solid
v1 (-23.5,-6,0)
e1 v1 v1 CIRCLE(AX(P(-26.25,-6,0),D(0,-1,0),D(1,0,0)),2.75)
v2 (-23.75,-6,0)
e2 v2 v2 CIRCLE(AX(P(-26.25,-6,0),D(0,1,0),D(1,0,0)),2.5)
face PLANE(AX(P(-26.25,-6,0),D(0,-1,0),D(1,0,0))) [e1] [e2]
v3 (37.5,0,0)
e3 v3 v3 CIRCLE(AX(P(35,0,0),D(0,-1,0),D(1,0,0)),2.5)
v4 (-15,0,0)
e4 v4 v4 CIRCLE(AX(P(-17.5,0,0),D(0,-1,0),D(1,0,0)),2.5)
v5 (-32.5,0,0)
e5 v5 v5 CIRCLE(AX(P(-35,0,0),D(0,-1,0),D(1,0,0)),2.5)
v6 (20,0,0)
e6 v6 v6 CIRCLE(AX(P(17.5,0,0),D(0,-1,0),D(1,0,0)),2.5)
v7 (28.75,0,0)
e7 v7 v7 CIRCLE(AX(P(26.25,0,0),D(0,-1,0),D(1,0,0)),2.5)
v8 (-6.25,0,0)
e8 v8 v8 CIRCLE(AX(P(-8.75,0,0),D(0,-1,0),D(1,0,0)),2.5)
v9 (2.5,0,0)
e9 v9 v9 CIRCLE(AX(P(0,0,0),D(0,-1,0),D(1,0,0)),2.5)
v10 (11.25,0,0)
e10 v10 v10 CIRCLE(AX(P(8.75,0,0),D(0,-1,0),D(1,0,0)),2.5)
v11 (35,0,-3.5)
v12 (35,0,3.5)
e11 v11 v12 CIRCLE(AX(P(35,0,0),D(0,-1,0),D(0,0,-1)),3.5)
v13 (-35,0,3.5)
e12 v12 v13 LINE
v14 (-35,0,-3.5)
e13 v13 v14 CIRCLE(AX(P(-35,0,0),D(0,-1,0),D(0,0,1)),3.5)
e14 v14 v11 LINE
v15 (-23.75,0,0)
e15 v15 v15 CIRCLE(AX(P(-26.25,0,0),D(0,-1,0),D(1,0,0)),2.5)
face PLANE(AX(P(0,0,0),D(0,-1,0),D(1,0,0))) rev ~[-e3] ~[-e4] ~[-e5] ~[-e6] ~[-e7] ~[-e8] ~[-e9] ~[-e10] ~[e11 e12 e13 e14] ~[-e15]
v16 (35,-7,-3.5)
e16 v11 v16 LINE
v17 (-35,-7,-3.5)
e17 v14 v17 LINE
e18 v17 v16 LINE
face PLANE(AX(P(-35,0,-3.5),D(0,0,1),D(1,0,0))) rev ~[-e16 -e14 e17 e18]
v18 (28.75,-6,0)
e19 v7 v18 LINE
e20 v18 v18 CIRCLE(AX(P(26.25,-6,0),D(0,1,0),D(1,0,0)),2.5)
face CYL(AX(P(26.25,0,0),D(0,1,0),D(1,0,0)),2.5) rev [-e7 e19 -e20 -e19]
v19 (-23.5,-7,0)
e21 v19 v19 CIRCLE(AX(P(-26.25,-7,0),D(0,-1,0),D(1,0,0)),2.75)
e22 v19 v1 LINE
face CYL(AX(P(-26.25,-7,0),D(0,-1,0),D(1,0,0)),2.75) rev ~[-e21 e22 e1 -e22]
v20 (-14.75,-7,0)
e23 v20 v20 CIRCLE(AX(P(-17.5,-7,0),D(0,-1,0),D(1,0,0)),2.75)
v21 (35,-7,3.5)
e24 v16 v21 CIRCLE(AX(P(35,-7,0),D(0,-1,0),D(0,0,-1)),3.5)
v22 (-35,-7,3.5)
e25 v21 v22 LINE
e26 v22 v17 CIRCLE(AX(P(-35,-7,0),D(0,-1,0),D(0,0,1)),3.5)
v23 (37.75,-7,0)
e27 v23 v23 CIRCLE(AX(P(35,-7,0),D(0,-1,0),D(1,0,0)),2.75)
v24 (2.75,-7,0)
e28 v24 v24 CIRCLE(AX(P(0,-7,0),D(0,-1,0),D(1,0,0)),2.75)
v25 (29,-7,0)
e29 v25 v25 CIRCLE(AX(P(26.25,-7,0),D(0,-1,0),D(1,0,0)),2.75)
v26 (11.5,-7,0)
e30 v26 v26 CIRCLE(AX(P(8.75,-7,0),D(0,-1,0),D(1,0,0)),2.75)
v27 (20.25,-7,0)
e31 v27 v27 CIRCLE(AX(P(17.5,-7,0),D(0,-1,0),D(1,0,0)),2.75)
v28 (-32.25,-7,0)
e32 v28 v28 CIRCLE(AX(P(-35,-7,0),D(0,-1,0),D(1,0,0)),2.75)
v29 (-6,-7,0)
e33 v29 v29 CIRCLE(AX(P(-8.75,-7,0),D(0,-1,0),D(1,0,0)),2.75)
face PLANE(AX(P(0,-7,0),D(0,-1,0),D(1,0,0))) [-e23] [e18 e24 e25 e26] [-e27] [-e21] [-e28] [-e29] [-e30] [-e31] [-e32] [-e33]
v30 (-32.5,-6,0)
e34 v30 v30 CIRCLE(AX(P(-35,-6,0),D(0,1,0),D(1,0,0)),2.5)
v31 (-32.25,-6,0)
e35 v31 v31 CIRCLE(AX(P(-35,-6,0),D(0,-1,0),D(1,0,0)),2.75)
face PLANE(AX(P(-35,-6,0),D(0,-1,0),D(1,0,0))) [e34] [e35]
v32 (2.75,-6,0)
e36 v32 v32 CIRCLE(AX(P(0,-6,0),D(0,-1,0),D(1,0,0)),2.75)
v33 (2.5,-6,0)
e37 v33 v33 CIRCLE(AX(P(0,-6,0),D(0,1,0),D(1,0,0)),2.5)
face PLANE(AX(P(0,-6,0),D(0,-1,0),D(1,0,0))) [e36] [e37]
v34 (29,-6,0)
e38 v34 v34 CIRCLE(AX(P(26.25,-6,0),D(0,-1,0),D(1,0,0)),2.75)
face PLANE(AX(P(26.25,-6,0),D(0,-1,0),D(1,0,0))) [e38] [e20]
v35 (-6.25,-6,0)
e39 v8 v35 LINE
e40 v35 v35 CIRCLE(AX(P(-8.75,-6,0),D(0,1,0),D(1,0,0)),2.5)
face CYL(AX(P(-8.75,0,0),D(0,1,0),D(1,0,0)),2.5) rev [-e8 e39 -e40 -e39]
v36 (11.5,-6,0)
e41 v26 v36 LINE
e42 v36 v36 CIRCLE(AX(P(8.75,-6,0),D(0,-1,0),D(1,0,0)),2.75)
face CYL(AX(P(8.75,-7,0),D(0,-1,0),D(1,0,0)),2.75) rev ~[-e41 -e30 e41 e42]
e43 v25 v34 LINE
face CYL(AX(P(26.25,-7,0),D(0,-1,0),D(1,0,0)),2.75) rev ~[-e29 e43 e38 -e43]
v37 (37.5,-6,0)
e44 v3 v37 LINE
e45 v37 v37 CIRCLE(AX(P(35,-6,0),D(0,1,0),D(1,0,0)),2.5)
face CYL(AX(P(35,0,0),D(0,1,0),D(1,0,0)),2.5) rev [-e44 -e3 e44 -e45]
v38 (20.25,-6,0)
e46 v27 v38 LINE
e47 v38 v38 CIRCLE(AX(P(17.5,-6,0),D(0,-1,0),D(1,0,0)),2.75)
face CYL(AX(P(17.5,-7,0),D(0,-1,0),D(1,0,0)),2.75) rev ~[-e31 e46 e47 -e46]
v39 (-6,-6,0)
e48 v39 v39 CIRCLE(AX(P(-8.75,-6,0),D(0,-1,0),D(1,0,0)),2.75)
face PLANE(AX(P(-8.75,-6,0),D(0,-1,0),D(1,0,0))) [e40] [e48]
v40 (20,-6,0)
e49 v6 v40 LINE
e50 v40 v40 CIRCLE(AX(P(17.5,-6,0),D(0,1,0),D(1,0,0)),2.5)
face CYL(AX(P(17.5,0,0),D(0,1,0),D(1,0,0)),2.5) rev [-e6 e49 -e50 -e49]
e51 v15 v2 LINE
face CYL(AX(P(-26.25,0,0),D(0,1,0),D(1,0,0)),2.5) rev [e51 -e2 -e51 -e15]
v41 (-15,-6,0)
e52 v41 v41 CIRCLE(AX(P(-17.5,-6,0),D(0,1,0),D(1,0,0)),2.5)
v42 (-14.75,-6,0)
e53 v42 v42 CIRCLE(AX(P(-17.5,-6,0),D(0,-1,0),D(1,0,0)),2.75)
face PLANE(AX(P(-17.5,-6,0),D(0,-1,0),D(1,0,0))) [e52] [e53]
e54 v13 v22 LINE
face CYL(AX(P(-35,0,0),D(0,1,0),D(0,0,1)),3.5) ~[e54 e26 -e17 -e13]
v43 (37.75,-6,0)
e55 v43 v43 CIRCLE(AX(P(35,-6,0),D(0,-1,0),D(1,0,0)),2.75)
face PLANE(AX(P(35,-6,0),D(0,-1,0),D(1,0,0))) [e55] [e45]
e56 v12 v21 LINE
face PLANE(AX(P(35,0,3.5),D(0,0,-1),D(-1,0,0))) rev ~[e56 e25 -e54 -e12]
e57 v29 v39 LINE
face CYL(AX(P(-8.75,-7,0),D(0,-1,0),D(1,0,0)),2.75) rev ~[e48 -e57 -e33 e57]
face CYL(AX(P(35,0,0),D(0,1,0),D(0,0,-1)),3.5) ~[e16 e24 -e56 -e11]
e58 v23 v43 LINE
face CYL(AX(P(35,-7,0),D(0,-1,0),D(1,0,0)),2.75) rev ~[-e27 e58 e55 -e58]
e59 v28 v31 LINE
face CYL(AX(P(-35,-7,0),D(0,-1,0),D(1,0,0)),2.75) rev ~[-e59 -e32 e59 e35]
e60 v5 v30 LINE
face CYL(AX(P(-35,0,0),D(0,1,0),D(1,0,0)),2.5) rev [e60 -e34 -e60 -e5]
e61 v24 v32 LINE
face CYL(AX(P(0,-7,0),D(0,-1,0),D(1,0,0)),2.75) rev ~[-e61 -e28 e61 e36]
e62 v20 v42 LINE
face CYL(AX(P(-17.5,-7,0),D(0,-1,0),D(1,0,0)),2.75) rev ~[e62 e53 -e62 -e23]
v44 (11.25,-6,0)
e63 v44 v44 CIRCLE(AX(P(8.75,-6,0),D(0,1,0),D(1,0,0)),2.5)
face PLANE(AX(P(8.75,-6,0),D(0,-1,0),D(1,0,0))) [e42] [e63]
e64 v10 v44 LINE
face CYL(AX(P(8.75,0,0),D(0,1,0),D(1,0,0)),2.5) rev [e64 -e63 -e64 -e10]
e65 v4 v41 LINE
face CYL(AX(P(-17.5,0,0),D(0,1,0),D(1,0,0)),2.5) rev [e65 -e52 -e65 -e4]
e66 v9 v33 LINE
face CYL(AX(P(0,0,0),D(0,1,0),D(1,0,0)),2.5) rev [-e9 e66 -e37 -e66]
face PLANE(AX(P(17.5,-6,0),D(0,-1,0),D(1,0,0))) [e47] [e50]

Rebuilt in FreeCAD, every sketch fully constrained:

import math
import FreeCAD as App
import Part
import Sketcher

V = App.Vector

doc = App.newDocument("Part")
body = doc.addObject("PartDesign::Body", "Body")

# Sketch on XZ plane
sketch1 = body.newObject("Sketcher::SketchObject", "Sketch")
sketch1.AttachmentSupport = (doc.getObject("XZ_Plane"), [""])
sketch1.MapMode = "FlatFace"
sketch1.addGeometry(Part.ArcOfCircle(Part.Circle(V(35, 0, 0), V(0, 0, 1), 3.5), math.radians(-90), math.radians(90)), False)
sketch1.addGeometry(Part.LineSegment(V(35, 3.5, 0), V(-35, 3.5, 0)), False)
sketch1.addGeometry(Part.ArcOfCircle(Part.Circle(V(-35, 0, 0), V(0, 0, 1), 3.5), math.radians(90), math.radians(270)), False)
sketch1.addGeometry(Part.LineSegment(V(-35, -3.5, 0), V(35, -3.5, 0)), False)
sketch1.addGeometry(Part.Circle(V(-35, 0, 0), V(0, 0, 1), 2.5), False)
sketch1.addGeometry(Part.Circle(V(-26.2, 0, 0), V(0, 0, 1), 2.5), False)
sketch1.addGeometry(Part.Circle(V(-17.5, 0, 0), V(0, 0, 1), 2.5), False)
sketch1.addGeometry(Part.Circle(V(-8.8, 0, 0), V(0, 0, 1), 2.5), False)
sketch1.addGeometry(Part.Circle(V(0, 0, 0), V(0, 0, 1), 2.5), False)
sketch1.addGeometry(Part.Circle(V(8.8, 0, 0), V(0, 0, 1), 2.5), False)
sketch1.addGeometry(Part.Circle(V(17.5, 0, 0), V(0, 0, 1), 2.5), False)
sketch1.addGeometry(Part.Circle(V(26.2, 0, 0), V(0, 0, 1), 2.5), False)
sketch1.addGeometry(Part.Circle(V(35, 0, 0), V(0, 0, 1), 2.5), False)
sketch1.addConstraint(Sketcher.Constraint("Tangent", 0, 2, 1, 1))
sketch1.addConstraint(Sketcher.Constraint("Tangent", 1, 2, 2, 1))
sketch1.addConstraint(Sketcher.Constraint("Tangent", 2, 2, 3, 1))
sketch1.addConstraint(Sketcher.Constraint("Tangent", 3, 2, 0, 1))
sketch1.addConstraint(Sketcher.Constraint("Horizontal", 1))
sketch1.addConstraint(Sketcher.Constraint("Horizontal", 3))
sketch1.addConstraint(Sketcher.Constraint("Coincident", 8, 3, -1, 1))
sketch1.addConstraint(Sketcher.Constraint("Coincident", 4, 3, 2, 3))
sketch1.addConstraint(Sketcher.Constraint("Coincident", 12, 3, 0, 3))
sketch1.addConstraint(Sketcher.Constraint("Equal", 4, 5))
sketch1.addConstraint(Sketcher.Constraint("Equal", 5, 6))
sketch1.addConstraint(Sketcher.Constraint("Equal", 6, 7))
sketch1.addConstraint(Sketcher.Constraint("Equal", 7, 8))
sketch1.addConstraint(Sketcher.Constraint("Equal", 8, 9))
sketch1.addConstraint(Sketcher.Constraint("Equal", 9, 10))
sketch1.addConstraint(Sketcher.Constraint("Equal", 10, 11))
sketch1.addConstraint(Sketcher.Constraint("Equal", 11, 12))
sketch1.addConstraint(Sketcher.Constraint("Symmetric", 0, 3, 2, 3, -1, 1))
sketch1.addConstraint(Sketcher.Constraint("Symmetric", 7, 3, 9, 3, -1, 1))
sketch1.addConstraint(Sketcher.Constraint("Symmetric", 6, 3, 10, 3, -1, 1))
sketch1.addConstraint(Sketcher.Constraint("Symmetric", 5, 3, 11, 3, -1, 1))
sketch1.addConstraint(Sketcher.Constraint("PointOnObject", 5, 3, -1))
sketch1.addConstraint(Sketcher.Constraint("PointOnObject", 6, 3, -1))
sketch1.addConstraint(Sketcher.Constraint("PointOnObject", 7, 3, -1))
sketch1.addConstraint(Sketcher.Constraint("Diameter", 4, 5.0))
sketch1.addConstraint(Sketcher.Constraint("Radius", 0, 3.5))
sketch1.addConstraint(Sketcher.Constraint("DistanceX", 1, 2, 1, 1, 70.0))
sketch1.addConstraint(Sketcher.Constraint("DistanceX", 5, 3, 9, 3, 35.0))
sketch1.addConstraint(Sketcher.Constraint("DistanceX", 6, 3, 10, 3, 35.0))
sketch1.addConstraint(Sketcher.Constraint("DistanceX", 5, 3, 7, 3, 17.5))
pad1 = body.newObject("PartDesign::Pad", "Pad")
pad1.Profile = sketch1
pad1.Length = 7

# Sketch on XZ plane
sketch2 = body.newObject("Sketcher::SketchObject", "Sketch001")
sketch2.AttachmentSupport = (doc.getObject("XZ_Plane"), [""])
sketch2.MapMode = "FlatFace"
sketch2.AttachmentOffset = App.Placement(V(0, 0, 7), App.Rotation())
sketch2.addGeometry(Part.Circle(V(35, 0, 0), V(0, 0, 1), 2.8), False)
sketch2.addGeometry(Part.Circle(V(26.2, 0, 0), V(0, 0, 1), 2.8), False)
sketch2.addGeometry(Part.Circle(V(17.5, 0, 0), V(0, 0, 1), 2.8), False)
sketch2.addGeometry(Part.Circle(V(8.8, 0, 0), V(0, 0, 1), 2.8), False)
sketch2.addGeometry(Part.Circle(V(0, 0, 0), V(0, 0, 1), 2.8), False)
sketch2.addGeometry(Part.Circle(V(-8.8, 0, 0), V(0, 0, 1), 2.8), False)
sketch2.addGeometry(Part.Circle(V(-17.5, 0, 0), V(0, 0, 1), 2.8), False)
sketch2.addGeometry(Part.Circle(V(-26.2, 0, 0), V(0, 0, 1), 2.8), False)
sketch2.addGeometry(Part.Circle(V(-35, 0, 0), V(0, 0, 1), 2.8), False)
sketch2.addConstraint(Sketcher.Constraint("Coincident", 4, 3, -1, 1))
sketch2.addConstraint(Sketcher.Constraint("Equal", 0, 1))
sketch2.addConstraint(Sketcher.Constraint("Equal", 1, 2))
sketch2.addConstraint(Sketcher.Constraint("Equal", 2, 3))
sketch2.addConstraint(Sketcher.Constraint("Equal", 3, 4))
sketch2.addConstraint(Sketcher.Constraint("Equal", 4, 5))
sketch2.addConstraint(Sketcher.Constraint("Equal", 5, 6))
sketch2.addConstraint(Sketcher.Constraint("Equal", 6, 7))
sketch2.addConstraint(Sketcher.Constraint("Equal", 7, 8))
sketch2.addConstraint(Sketcher.Constraint("Symmetric", 3, 3, 5, 3, -1, 1))
sketch2.addConstraint(Sketcher.Constraint("Symmetric", 2, 3, 6, 3, -1, 1))
sketch2.addConstraint(Sketcher.Constraint("Symmetric", 1, 3, 7, 3, -1, 1))
sketch2.addConstraint(Sketcher.Constraint("Symmetric", 0, 3, 8, 3, -1, 1))
sketch2.addConstraint(Sketcher.Constraint("PointOnObject", 0, 3, -1))
sketch2.addConstraint(Sketcher.Constraint("PointOnObject", 1, 3, -1))
sketch2.addConstraint(Sketcher.Constraint("PointOnObject", 2, 3, -1))
sketch2.addConstraint(Sketcher.Constraint("PointOnObject", 3, 3, -1))
sketch2.addConstraint(Sketcher.Constraint("Diameter", 0, 5.5))
sketch2.addConstraint(Sketcher.Constraint("DistanceX", -1, 1, 0, 3, 35.0))
sketch2.addConstraint(Sketcher.Constraint("DistanceX", 5, 3, 1, 3, 35.0))
sketch2.addConstraint(Sketcher.Constraint("DistanceX", 6, 3, 2, 3, 35.0))
sketch2.addConstraint(Sketcher.Constraint("DistanceX", 3, 3, 1, 3, 17.5))
pocket1 = body.newObject("PartDesign::Pocket", "Pocket")
pocket1.Profile = sketch2
pocket1.Length = 1

doc.recompute()
